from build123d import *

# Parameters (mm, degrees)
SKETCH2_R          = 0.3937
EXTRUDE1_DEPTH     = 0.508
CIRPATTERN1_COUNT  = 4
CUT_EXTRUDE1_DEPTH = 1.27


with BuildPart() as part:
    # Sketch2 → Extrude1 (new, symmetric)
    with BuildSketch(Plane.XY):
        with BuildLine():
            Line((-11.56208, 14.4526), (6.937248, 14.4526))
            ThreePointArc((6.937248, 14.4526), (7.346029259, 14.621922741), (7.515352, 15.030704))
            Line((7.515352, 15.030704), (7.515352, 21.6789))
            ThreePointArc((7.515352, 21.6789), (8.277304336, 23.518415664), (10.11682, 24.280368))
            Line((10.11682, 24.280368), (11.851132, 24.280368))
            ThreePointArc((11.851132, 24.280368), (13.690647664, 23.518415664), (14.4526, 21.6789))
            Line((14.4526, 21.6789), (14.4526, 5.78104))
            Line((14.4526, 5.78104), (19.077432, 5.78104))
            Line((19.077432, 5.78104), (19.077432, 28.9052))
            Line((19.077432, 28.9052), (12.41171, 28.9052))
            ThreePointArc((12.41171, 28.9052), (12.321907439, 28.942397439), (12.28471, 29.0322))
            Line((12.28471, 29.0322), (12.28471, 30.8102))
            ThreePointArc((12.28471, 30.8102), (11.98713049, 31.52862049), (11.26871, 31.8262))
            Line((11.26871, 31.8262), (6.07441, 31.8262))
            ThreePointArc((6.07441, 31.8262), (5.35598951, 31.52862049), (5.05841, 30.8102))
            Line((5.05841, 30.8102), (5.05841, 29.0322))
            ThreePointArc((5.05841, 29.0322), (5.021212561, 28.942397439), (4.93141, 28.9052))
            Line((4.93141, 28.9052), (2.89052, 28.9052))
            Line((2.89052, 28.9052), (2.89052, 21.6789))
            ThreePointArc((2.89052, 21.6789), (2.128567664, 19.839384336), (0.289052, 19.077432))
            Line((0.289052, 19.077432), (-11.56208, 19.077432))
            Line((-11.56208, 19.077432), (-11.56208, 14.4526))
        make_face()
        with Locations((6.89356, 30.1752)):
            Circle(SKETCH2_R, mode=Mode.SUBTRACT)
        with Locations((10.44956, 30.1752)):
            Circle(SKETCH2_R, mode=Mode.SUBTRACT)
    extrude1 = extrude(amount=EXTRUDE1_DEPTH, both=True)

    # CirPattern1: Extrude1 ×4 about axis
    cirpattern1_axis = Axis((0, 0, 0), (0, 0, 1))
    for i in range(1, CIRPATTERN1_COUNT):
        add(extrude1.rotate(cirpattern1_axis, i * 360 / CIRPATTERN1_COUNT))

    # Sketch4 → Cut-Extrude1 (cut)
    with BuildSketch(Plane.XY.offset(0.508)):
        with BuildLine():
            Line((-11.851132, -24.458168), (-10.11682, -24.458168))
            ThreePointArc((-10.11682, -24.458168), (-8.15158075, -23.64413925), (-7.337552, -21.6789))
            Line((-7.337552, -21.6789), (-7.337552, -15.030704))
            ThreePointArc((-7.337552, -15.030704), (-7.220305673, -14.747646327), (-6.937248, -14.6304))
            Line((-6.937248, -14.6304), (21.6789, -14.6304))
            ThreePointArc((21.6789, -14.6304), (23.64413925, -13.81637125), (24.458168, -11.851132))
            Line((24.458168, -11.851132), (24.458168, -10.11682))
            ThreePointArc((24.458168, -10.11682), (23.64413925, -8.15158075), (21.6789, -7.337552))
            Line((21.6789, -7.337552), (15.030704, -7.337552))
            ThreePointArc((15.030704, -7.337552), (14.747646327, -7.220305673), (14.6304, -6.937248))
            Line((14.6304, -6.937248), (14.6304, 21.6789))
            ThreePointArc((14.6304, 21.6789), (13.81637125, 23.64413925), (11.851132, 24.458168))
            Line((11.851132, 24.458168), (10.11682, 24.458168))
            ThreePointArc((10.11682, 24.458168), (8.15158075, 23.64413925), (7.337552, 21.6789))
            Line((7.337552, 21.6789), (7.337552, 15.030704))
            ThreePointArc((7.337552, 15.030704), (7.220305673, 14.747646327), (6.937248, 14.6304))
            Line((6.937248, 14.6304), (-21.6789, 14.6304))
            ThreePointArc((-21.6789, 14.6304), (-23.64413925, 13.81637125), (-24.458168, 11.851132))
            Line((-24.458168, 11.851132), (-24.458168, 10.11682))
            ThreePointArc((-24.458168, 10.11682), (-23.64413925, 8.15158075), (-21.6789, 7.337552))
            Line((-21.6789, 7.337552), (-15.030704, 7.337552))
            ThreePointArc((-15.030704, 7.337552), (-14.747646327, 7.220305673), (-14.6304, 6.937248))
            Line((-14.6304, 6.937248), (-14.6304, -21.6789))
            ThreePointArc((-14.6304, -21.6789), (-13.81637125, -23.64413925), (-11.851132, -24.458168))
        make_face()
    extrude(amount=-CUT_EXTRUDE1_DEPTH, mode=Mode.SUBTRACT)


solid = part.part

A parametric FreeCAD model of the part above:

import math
import FreeCAD as App
import Part
import Sketcher
Q = App.Units.Quantity

doc = App.newDocument("Part")
params = doc.addObject("Spreadsheet::Sheet", "Params")
for row, (alias, value) in enumerate([
    ("sketch1_radius", "0.04 in"),
    ("sketch1_diameter", "0.031 in"),
    ("sketch1_radius2", "0.005 in"),
    ("sketch1_height", "0.07 in"),
    ("pad1_length", "0.04 in"),
    ("pocket1_length", "0.05 in"),
], start=1):
    params.set(f"A{row}", alias)
    params.set(f"B{row}", "=" + value)
    params.setAlias(f"B{row}", alias)

body = doc.addObject("PartDesign::Body", "Body")

# Sketch on XY plane
sketch1 = body.newObject("Sketcher::SketchObject", "Sketch")
sketch1.AttachmentSupport = (doc.getObject("XY_Plane"), [""])
sketch1.MapMode = "FlatFace"
sketch1.addGeometry([
    Part.LineSegment(App.Vector(-11.56, 14.45, 0), App.Vector(6.94, 14.45, 0)),  # 0
    Part.ArcOfCircle(Part.Circle(App.Vector(6.94, 15.03, 0), App.Vector(0, 0, 1), 0.58), math.radians(-90), math.radians(0)),  # 1
    Part.LineSegment(App.Vector(7.52, 15.03, 0), App.Vector(7.52, 21.68, 0)),  # 2
    Part.ArcOfCircle(Part.Circle(App.Vector(10.12, 21.68, 0), App.Vector(0, 0, 1), 2.6), math.radians(90), math.radians(180)),  # 3
    Part.LineSegment(App.Vector(10.12, 24.28, 0), App.Vector(11.85, 24.28, 0)),  # 4
    Part.ArcOfCircle(Part.Circle(App.Vector(11.85, 21.68, 0), App.Vector(0, 0, 1), 2.6), math.radians(0), math.radians(90)),  # 5
    Part.LineSegment(App.Vector(14.45, 21.68, 0), App.Vector(14.45, 5.78, 0)),  # 6
    Part.LineSegment(App.Vector(14.45, 5.78, 0), App.Vector(19.08, 5.78, 0)),  # 7
    Part.LineSegment(App.Vector(19.08, 5.78, 0), App.Vector(19.08, 28.91, 0)),  # 8
    Part.LineSegment(App.Vector(19.08, 28.91, 0), App.Vector(12.41, 28.91, 0)),  # 9
    Part.ArcOfCircle(Part.Circle(App.Vector(12.41, 29.03, 0), App.Vector(0, 0, 1), 0.13), math.radians(-180), math.radians(-90)),  # 10
    Part.LineSegment(App.Vector(12.28, 29.03, 0), App.Vector(12.28, 30.81, 0)),  # 11
    Part.ArcOfCircle(Part.Circle(App.Vector(11.27, 30.81, 0), App.Vector(0, 0, 1), 1.02), math.radians(0), math.radians(90)),  # 12
    Part.LineSegment(App.Vector(11.27, 31.83, 0), App.Vector(6.07, 31.83, 0)),  # 13
    Part.ArcOfCircle(Part.Circle(App.Vector(6.07, 30.81, 0), App.Vector(0, 0, 1), 1.02), math.radians(90), math.radians(180)),  # 14
    Part.LineSegment(App.Vector(5.06, 30.81, 0), App.Vector(5.06, 29.03, 0)),  # 15
    Part.ArcOfCircle(Part.Circle(App.Vector(4.93, 29.03, 0), App.Vector(0, 0, 1), 0.13), math.radians(-90), math.radians(0)),  # 16
    Part.LineSegment(App.Vector(4.93, 28.91, 0), App.Vector(2.89, 28.91, 0)),  # 17
    Part.LineSegment(App.Vector(2.89, 28.91, 0), App.Vector(2.89, 21.68, 0)),  # 18
    Part.ArcOfCircle(Part.Circle(App.Vector(0.29, 21.68, 0), App.Vector(0, 0, 1), 2.6), math.radians(-90), math.radians(0)),  # 19
    Part.LineSegment(App.Vector(0.29, 19.08, 0), App.Vector(-11.56, 19.08, 0)),  # 20
    Part.LineSegment(App.Vector(-11.56, 19.08, 0), App.Vector(-11.56, 14.45, 0)),  # 21
    Part.Circle(App.Vector(6.89, 30.18, 0), App.Vector(0, 0, 1), 0.39),  # 22
    Part.Circle(App.Vector(10.45, 30.18, 0), App.Vector(0, 0, 1), 0.39),  # 23
], False)
sketch1.addConstraint([
    Sketcher.Constraint("Tangent", 0, 2, 1, 1),
    Sketcher.Constraint("Tangent", 1, 2, 2, 1),
    Sketcher.Constraint("Tangent", 2, 2, 3, 2),
    Sketcher.Constraint("Tangent", 3, 1, 4, 1),
    Sketcher.Constraint("Tangent", 4, 2, 5, 2),
    Sketcher.Constraint("Tangent", 5, 1, 6, 1),
    Sketcher.Constraint("Coincident", 6, 2, 7, 1),
    Sketcher.Constraint("Coincident", 7, 2, 8, 1),
    Sketcher.Constraint("Coincident", 8, 2, 9, 1),
    Sketcher.Constraint("Tangent", 9, 2, 10, 2),
    Sketcher.Constraint("Tangent", 10, 1, 11, 1),
    Sketcher.Constraint("Tangent", 11, 2, 12, 1),
    Sketcher.Constraint("Tangent", 12, 2, 13, 1),
    Sketcher.Constraint("Tangent", 13, 2, 14, 1),
    Sketcher.Constraint("Tangent", 14, 2, 15, 1),
    Sketcher.Constraint("Tangent", 15, 2, 16, 2),
    Sketcher.Constraint("Tangent", 16, 1, 17, 1),
    Sketcher.Constraint("Coincident", 17, 2, 18, 1),
    Sketcher.Constraint("Tangent", 18, 2, 19, 2),
    Sketcher.Constraint("Tangent", 19, 1, 20, 1),
    Sketcher.Constraint("Coincident", 20, 2, 21, 1),
    Sketcher.Constraint("Coincident", 21, 2, 0, 1),
    Sketcher.Constraint("Horizontal", 0),
    Sketcher.Constraint("Vertical", 2),
    Sketcher.Constraint("Horizontal", 4),
    Sketcher.Constraint("Vertical", 6),
    Sketcher.Constraint("Horizontal", 7),
    Sketcher.Constraint("Vertical", 8),
    Sketcher.Constraint("Horizontal", 9),
    Sketcher.Constraint("Vertical", 11),
    Sketcher.Constraint("Horizontal", 13),
    Sketcher.Constraint("Vertical", 15),
    Sketcher.Constraint("Horizontal", 17),
    Sketcher.Constraint("Vertical", 18),
    Sketcher.Constraint("Horizontal", 20),
    Sketcher.Constraint("Vertical", 21),
    Sketcher.Constraint("Equal", 3, 5),
    Sketcher.Constraint("Equal", 12, 14),
    Sketcher.Constraint("Equal", 10, 16),
    Sketcher.Constraint("Equal", 5, 19),
    Sketcher.Constraint("Equal", 22, 23),
    Sketcher.Constraint("Horizontal", 10, 3, 16, 3),
    Sketcher.Constraint("Horizontal", 5, 3, 19, 3),
    Sketcher.Constraint("Horizontal", 22, 3, 23, 3),
    Sketcher.Constraint("Equal", 7, 21),
    Sketcher.Constraint("Radius", 12, Q("0.04 in")),
    Sketcher.Constraint("Diameter", 22, Q("0.031 in")),
    Sketcher.Constraint("Radius", 10, Q("0.005 in")),
    Sketcher.Constraint("DistanceY", 11, 1, 11, 2, Q("0.07 in")),
    Sketcher.Constraint("DistanceX", 22, 3, 23, 3, Q("0.14 in")),
    Sketcher.Constraint("DistanceY", 8, 2, 23, 3, Q("0.05 in")),
    Sketcher.Constraint("DistanceX", 13, 2, 13, 1, Q("0.2045 in")),
    Sketcher.Constraint("DistanceY", 6, 2, 6, 1, Q("0.6259 in")),
    Sketcher.Constraint("DistanceY", 8, 1, 8, 2, Q("0.9104 in")),
    Sketcher.Constraint("DistanceY", -1, 1, 10, 3, Q("1.143 in")),
    Sketcher.Constraint("DistanceY", -1, 1, 0, 2, Q("0.569 in")),
    Sketcher.Constraint("DistanceX", -1, 1, 5, 1, Q("0.569 in")),
    Sketcher.Constraint("DistanceX", 20, 2, 18, 2, Q("0.569 in")),
    Sketcher.Constraint("DistanceX", -1, 1, 3, 3, Q("0.3983 in")),
    Sketcher.Constraint("DistanceX", -1, 1, 22, 3, Q("0.2714 in")),
    Sketcher.Constraint("DistanceX", -1, 1, 17, 2, Q("0.1138 in")),
    Sketcher.Constraint("Radius", 1, 0.578104),
    Sketcher.Constraint("Radius", 3, 2.601468),
    Sketcher.Constraint("DistanceX", 17, 2, 17, 1, 2.04089),
])
sketch1.setExpression("Constraints[45]", "Params.sketch1_radius")
sketch1.setExpression("Constraints[46]", "Params.sketch1_diameter")
sketch1.setExpression("Constraints[47]", "Params.sketch1_radius2")
sketch1.setExpression("Constraints[48]", "Params.sketch1_height")
pad1 = body.newObject("PartDesign::Pad", "Pad")
pad1.Profile = sketch1
pad1.setExpression("Length", "Params.pad1_length")
pad1.Midplane = True
doc.recompute()

polarpattern = body.newObject("PartDesign::PolarPattern", "PolarPattern")
polarpattern.Originals = [pad1]
polarpattern.Axis = (doc.getObject("Z_Axis"), [""])
polarpattern.Angle = 360
polarpattern.Occurrences = 4
body.Tip = polarpattern

# Sketch on XY plane
sketch2 = body.newObject("Sketcher::SketchObject", "Sketch001")
sketch2.AttachmentSupport = (doc.getObject("XY_Plane"), [""])
sketch2.MapMode = "FlatFace"
sketch2.AttachmentOffset = App.Placement(App.Vector(0, 0, 0.02 * 25.4), App.Rotation())
sketch2.addGeometry([
    Part.LineSegment(App.Vector(-11.85, -24.46, 0), App.Vector(-10.12, -24.46, 0)),  # 0
    Part.ArcOfCircle(Part.Circle(App.Vector(-10.12, -21.68, 0), App.Vector(0, 0, 1), 2.78), math.radians(-90), math.radians(0)),  # 1
    Part.LineSegment(App.Vector(-7.34, -21.68, 0), App.Vector(-7.34, -15.03, 0)),  # 2
    Part.ArcOfCircle(Part.Circle(App.Vector(-6.94, -15.03, 0), App.Vector(0, 0, 1), 0.4), math.radians(90), math.radians(180)),  # 3
    Part.LineSegment(App.Vector(-6.94, -14.63, 0), App.Vector(21.68, -14.63, 0)),  # 4
    Part.ArcOfCircle(Part.Circle(App.Vector(21.68, -11.85, 0), App.Vector(0, 0, 1), 2.78), math.radians(-90), math.radians(0)),  # 5
    Part.LineSegment(App.Vector(24.46, -11.85, 0), App.Vector(24.46, -10.12, 0)),  # 6
    Part.ArcOfCircle(Part.Circle(App.Vector(21.68, -10.12, 0), App.Vector(0, 0, 1), 2.78), math.radians(0), math.radians(90)),  # 7
    Part.LineSegment(App.Vector(21.68, -7.34, 0), App.Vector(15.03, -7.34, 0)),  # 8
    Part.ArcOfCircle(Part.Circle(App.Vector(15.03, -6.94, 0), App.Vector(0, 0, 1), 0.4), math.radians(180), math.radians(270)),  # 9
    Part.LineSegment(App.Vector(14.63, -6.94, 0), App.Vector(14.63, 21.68, 0)),  # 10
    Part.ArcOfCircle(Part.Circle(App.Vector(11.85, 21.68, 0), App.Vector(0, 0, 1), 2.78), math.radians(0), math.radians(90)),  # 11
    Part.LineSegment(App.Vector(11.85, 24.46, 0), App.Vector(10.12, 24.46, 0)),  # 12
    Part.ArcOfCircle(Part.Circle(App.Vector(10.12, 21.68, 0), App.Vector(0, 0, 1), 2.78), math.radians(90), math.radians(180)),  # 13
    Part.LineSegment(App.Vector(7.34, 21.68, 0), App.Vector(7.34, 15.03, 0)),  # 14
    Part.ArcOfCircle(Part.Circle(App.Vector(6.94, 15.03, 0), App.Vector(0, 0, 1), 0.4), math.radians(-90), math.radians(0)),  # 15
    Part.LineSegment(App.Vector(6.94, 14.63, 0), App.Vector(-21.68, 14.63, 0)),  # 16
    Part.ArcOfCircle(Part.Circle(App.Vector(-21.68, 11.85, 0), App.Vector(0, 0, 1), 2.78), math.radians(90), math.radians(180)),  # 17
    Part.LineSegment(App.Vector(-24.46, 11.85, 0), App.Vector(-24.46, 10.12, 0)),  # 18
    Part.ArcOfCircle(Part.Circle(App.Vector(-21.68, 10.12, 0), App.Vector(0, 0, 1), 2.78), math.radians(180), math.radians(270)),  # 19
    Part.LineSegment(App.Vector(-21.68, 7.34, 0), App.Vector(-15.03, 7.34, 0)),  # 20
    Part.ArcOfCircle(Part.Circle(App.Vector(-15.03, 6.94, 0), App.Vector(0, 0, 1), 0.4), math.radians(0), math.radians(90)),  # 21
    Part.LineSegment(App.Vector(-14.63, 6.94, 0), App.Vector(-14.63, -21.68, 0)),  # 22
    Part.ArcOfCircle(Part.Circle(App.Vector(-11.85, -21.68, 0), App.Vector(0, 0, 1), 2.78), math.radians(180), math.radians(270)),  # 23
], False)
sketch2.addConstraint([
    Sketcher.Constraint("Tangent", 0, 2, 1, 1),
    Sketcher.Constraint("Tangent", 1, 2, 2, 1),
    Sketcher.Constraint("Tangent", 2, 2, 3, 2),
    Sketcher.Constraint("Tangent", 3, 1, 4, 1),
    Sketcher.Constraint("Tangent", 4, 2, 5, 1),
    Sketcher.Constraint("Tangent", 5, 2, 6, 1),
    Sketcher.Constraint("Tangent", 6, 2, 7, 1),
    Sketcher.Constraint("Tangent", 7, 2, 8, 1),
    Sketcher.Constraint("Tangent", 8, 2, 9, 2),
    Sketcher.Constraint("Tangent", 9, 1, 10, 1),
    Sketcher.Constraint("Tangent", 10, 2, 11, 1),
    Sketcher.Constraint("Tangent", 11, 2, 12, 1),
    Sketcher.Constraint("Tangent", 12, 2, 13, 1),
    Sketcher.Constraint("Tangent", 13, 2, 14, 1),
    Sketcher.Constraint("Tangent", 14, 2, 15, 2),
    Sketcher.Constraint("Tangent", 15, 1, 16, 1),
    Sketcher.Constraint("Tangent", 16, 2, 17, 1),
    Sketcher.Constraint("Tangent", 17, 2, 18, 1),
    Sketcher.Constraint("Tangent", 18, 2, 19, 1),
    Sketcher.Constraint("Tangent", 19, 2, 20, 1),
    Sketcher.Constraint("Tangent", 20, 2, 21, 2),
    Sketcher.Constraint("Tangent", 21, 1, 22, 1),
    Sketcher.Constraint("Tangent", 22, 2, 23, 1),
    Sketcher.Constraint("Tangent", 23, 2, 0, 1),
    Sketcher.Constraint("Horizontal", 0),
    Sketcher.Constraint("Vertical", 2),
    Sketcher.Constraint("Horizontal", 4),
    Sketcher.Constraint("Vertical", 6),
    Sketcher.Constraint("Horizontal", 8),
    Sketcher.Constraint("Vertical", 10),
    Sketcher.Constraint("Horizontal", 12),
    Sketcher.Constraint("Vertical", 14),
    Sketcher.Constraint("Horizontal", 16),
    Sketcher.Constraint("Vertical", 18),
    Sketcher.Constraint("Horizontal", 20),
    Sketcher.Constraint("Vertical", 22),
    Sketcher.Constraint("Equal", 1, 5),
    Sketcher.Constraint("Equal", 5, 7),
    Sketcher.Constraint("Equal", 3, 9),
    Sketcher.Constraint("Equal", 7, 11),
    Sketcher.Constraint("Equal", 11, 13),
    Sketcher.Constraint("Equal", 9, 15),
    Sketcher.Constraint("Equal", 13, 17),
    Sketcher.Constraint("Equal", 17, 19),
    Sketcher.Constraint("Equal", 15, 21),
    Sketcher.Constraint("Equal", 19, 23),
    Sketcher.Constraint("Symmetric", 1, 3, 13, 3, -1, 1),
    Sketcher.Constraint("Symmetric", 5, 3, 17, 3, -1, 1),
    Sketcher.Constraint("Symmetric", 9, 3, 21, 3, -1, 1),
    Sketcher.Constraint("Equal", 20, 2),
    Sketcher.Constraint("Equal", 12, 6),
    Sketcher.Constraint("Equal", 16, 10),
    Sketcher.Constraint("DistanceY", 3, 1, -1, 1, Q("0.576 in")),
    Sketcher.Constraint("DistanceY", 1, 3, 11, 3, Q("1.707 in")),
    Sketcher.Constraint("DistanceX", 1, 3, -1, 1, Q("0.3983 in")),
    Sketcher.Constraint("Radius", 1, 2.779268),
    Sketcher.Constraint("Radius", 3, 0.400304),
])
pocket1 = body.newObject("PartDesign::Pocket", "Pocket")
pocket1.Profile = sketch2
pocket1.setExpression("Length", "Params.pocket1_length")

doc.recompute()
